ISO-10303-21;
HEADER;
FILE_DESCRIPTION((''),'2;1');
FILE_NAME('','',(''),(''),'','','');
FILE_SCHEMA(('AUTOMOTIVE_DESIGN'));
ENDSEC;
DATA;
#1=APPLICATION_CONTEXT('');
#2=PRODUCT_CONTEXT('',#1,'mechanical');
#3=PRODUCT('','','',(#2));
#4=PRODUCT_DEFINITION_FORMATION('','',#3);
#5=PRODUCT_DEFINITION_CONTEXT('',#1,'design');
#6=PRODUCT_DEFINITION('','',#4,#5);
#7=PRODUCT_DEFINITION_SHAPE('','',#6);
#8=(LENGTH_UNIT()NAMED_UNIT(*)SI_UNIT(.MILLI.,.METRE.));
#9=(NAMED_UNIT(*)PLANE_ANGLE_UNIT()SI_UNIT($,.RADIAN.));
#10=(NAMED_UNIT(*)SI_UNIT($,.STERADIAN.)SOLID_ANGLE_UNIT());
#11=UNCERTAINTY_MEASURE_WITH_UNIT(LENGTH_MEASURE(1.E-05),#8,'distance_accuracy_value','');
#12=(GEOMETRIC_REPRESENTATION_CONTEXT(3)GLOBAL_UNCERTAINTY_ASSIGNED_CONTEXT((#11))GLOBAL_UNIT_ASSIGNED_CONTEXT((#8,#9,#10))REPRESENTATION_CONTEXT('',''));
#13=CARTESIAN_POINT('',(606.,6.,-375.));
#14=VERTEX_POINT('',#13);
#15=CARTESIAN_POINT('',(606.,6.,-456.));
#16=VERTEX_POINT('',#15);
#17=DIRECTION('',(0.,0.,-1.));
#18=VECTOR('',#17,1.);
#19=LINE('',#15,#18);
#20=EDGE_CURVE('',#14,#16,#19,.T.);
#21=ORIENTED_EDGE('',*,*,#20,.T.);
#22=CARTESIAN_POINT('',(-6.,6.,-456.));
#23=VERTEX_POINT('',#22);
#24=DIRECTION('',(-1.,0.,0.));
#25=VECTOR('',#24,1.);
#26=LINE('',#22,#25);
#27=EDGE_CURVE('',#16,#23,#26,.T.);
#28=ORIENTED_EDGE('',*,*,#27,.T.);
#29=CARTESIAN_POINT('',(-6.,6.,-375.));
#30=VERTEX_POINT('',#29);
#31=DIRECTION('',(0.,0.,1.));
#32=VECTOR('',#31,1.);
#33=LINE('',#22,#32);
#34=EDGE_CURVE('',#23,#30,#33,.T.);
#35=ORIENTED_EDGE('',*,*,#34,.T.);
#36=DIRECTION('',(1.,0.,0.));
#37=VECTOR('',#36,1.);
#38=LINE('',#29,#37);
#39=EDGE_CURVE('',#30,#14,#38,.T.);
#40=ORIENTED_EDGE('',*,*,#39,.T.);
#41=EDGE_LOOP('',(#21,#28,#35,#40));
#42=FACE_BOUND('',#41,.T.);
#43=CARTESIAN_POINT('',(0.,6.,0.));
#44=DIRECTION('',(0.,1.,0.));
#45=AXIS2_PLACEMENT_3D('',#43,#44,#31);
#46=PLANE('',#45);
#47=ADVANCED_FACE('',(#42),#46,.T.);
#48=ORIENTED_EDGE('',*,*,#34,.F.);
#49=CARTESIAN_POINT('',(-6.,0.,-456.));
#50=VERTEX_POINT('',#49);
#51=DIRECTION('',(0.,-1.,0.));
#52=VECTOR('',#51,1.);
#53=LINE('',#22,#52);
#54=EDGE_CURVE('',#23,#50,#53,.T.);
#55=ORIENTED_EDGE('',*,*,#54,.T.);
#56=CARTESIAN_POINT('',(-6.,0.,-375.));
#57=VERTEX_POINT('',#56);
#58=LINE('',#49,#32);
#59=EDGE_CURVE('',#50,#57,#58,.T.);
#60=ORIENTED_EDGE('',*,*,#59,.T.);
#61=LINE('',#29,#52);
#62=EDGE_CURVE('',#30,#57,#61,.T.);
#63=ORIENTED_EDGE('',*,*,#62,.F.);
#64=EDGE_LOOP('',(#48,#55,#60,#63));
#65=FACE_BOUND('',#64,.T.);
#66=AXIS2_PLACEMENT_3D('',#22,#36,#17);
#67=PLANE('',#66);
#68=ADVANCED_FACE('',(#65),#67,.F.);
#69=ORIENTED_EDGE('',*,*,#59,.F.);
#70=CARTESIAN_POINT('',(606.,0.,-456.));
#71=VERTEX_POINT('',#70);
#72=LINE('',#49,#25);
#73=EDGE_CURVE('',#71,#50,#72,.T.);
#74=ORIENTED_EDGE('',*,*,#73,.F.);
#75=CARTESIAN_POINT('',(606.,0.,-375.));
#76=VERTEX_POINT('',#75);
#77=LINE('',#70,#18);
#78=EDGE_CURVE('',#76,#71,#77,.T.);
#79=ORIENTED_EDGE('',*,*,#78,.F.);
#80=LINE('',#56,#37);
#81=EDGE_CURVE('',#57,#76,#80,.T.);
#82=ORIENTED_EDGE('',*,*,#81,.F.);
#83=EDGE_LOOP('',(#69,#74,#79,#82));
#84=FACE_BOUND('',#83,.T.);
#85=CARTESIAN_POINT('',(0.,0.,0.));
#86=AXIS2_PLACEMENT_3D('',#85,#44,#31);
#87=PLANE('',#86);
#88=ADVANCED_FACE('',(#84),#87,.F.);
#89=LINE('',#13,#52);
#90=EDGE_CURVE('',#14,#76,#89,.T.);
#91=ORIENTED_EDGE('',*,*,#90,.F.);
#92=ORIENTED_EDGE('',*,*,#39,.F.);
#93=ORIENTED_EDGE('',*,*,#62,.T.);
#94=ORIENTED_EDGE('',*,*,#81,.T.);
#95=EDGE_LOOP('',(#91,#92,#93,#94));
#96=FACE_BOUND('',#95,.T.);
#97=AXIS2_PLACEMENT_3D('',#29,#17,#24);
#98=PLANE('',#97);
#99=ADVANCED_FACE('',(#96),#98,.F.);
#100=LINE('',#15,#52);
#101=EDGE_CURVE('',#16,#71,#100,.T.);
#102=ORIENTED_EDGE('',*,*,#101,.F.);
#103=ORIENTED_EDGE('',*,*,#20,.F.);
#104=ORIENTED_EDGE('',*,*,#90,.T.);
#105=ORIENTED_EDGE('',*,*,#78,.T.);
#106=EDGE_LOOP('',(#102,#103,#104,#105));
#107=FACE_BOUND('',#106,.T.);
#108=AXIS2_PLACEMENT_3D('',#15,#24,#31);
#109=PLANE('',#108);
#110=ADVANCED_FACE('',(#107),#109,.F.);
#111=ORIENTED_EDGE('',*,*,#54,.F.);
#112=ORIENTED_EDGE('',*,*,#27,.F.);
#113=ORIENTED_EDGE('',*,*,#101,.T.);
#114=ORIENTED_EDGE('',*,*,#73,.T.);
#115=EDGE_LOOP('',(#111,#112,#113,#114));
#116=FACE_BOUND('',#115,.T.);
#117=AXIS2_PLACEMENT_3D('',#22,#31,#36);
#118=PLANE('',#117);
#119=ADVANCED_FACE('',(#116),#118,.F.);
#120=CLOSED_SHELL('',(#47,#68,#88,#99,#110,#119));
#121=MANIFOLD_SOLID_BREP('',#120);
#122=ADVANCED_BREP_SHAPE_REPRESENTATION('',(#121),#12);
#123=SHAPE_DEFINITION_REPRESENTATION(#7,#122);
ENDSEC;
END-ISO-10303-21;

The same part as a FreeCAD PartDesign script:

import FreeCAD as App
import Part
import Sketcher

V = App.Vector


def add_polygon(sketch, points):
    """Adds a closed chain of lines whose ends are joined by coincident constraints."""
    first, n = sketch.GeometryCount, len(points)
    for a, b in zip(points, points[1:] + points[:1]):
        sketch.addGeometry(Part.LineSegment(App.Vector(*a, 0), App.Vector(*b, 0)), False)
    for i in range(n):
        sketch.addConstraint(Sketcher.Constraint("Coincident", first + i, 2, first + (i + 1) % n, 1))

doc = App.newDocument("Part")
body = doc.addObject("PartDesign::Body", "Body")

# Sketch on XZ plane
sketch1 = body.newObject("Sketcher::SketchObject", "Sketch")
sketch1.AttachmentSupport = (doc.getObject("XZ_Plane"), [""])
sketch1.MapMode = "FlatFace"
add_polygon(sketch1, [(-6, -456), (-6, -375), (606, -375), (606, -456)])  # lines 0-3
sketch1.addConstraint([
    Sketcher.Constraint("Vertical", 0),
    Sketcher.Constraint("Horizontal", 1),
    Sketcher.Constraint("Vertical", 2),
    Sketcher.Constraint("Horizontal", 3),
    Sketcher.Constraint("DistanceX", 1, 1, 1, 2, 612.0),
    Sketcher.Constraint("DistanceY", 0, 1, 0, 2, 81.0),
    Sketcher.Constraint("DistanceX", 0, 2, -1, 1, 6.0),
    Sketcher.Constraint("DistanceY", 0, 2, -1, 1, 375.0),
])
pad1 = body.newObject("PartDesign::Pad", "Pad")
pad1.Profile = sketch1
pad1.Length = 6
pad1.Reversed = True

doc.recompute()
